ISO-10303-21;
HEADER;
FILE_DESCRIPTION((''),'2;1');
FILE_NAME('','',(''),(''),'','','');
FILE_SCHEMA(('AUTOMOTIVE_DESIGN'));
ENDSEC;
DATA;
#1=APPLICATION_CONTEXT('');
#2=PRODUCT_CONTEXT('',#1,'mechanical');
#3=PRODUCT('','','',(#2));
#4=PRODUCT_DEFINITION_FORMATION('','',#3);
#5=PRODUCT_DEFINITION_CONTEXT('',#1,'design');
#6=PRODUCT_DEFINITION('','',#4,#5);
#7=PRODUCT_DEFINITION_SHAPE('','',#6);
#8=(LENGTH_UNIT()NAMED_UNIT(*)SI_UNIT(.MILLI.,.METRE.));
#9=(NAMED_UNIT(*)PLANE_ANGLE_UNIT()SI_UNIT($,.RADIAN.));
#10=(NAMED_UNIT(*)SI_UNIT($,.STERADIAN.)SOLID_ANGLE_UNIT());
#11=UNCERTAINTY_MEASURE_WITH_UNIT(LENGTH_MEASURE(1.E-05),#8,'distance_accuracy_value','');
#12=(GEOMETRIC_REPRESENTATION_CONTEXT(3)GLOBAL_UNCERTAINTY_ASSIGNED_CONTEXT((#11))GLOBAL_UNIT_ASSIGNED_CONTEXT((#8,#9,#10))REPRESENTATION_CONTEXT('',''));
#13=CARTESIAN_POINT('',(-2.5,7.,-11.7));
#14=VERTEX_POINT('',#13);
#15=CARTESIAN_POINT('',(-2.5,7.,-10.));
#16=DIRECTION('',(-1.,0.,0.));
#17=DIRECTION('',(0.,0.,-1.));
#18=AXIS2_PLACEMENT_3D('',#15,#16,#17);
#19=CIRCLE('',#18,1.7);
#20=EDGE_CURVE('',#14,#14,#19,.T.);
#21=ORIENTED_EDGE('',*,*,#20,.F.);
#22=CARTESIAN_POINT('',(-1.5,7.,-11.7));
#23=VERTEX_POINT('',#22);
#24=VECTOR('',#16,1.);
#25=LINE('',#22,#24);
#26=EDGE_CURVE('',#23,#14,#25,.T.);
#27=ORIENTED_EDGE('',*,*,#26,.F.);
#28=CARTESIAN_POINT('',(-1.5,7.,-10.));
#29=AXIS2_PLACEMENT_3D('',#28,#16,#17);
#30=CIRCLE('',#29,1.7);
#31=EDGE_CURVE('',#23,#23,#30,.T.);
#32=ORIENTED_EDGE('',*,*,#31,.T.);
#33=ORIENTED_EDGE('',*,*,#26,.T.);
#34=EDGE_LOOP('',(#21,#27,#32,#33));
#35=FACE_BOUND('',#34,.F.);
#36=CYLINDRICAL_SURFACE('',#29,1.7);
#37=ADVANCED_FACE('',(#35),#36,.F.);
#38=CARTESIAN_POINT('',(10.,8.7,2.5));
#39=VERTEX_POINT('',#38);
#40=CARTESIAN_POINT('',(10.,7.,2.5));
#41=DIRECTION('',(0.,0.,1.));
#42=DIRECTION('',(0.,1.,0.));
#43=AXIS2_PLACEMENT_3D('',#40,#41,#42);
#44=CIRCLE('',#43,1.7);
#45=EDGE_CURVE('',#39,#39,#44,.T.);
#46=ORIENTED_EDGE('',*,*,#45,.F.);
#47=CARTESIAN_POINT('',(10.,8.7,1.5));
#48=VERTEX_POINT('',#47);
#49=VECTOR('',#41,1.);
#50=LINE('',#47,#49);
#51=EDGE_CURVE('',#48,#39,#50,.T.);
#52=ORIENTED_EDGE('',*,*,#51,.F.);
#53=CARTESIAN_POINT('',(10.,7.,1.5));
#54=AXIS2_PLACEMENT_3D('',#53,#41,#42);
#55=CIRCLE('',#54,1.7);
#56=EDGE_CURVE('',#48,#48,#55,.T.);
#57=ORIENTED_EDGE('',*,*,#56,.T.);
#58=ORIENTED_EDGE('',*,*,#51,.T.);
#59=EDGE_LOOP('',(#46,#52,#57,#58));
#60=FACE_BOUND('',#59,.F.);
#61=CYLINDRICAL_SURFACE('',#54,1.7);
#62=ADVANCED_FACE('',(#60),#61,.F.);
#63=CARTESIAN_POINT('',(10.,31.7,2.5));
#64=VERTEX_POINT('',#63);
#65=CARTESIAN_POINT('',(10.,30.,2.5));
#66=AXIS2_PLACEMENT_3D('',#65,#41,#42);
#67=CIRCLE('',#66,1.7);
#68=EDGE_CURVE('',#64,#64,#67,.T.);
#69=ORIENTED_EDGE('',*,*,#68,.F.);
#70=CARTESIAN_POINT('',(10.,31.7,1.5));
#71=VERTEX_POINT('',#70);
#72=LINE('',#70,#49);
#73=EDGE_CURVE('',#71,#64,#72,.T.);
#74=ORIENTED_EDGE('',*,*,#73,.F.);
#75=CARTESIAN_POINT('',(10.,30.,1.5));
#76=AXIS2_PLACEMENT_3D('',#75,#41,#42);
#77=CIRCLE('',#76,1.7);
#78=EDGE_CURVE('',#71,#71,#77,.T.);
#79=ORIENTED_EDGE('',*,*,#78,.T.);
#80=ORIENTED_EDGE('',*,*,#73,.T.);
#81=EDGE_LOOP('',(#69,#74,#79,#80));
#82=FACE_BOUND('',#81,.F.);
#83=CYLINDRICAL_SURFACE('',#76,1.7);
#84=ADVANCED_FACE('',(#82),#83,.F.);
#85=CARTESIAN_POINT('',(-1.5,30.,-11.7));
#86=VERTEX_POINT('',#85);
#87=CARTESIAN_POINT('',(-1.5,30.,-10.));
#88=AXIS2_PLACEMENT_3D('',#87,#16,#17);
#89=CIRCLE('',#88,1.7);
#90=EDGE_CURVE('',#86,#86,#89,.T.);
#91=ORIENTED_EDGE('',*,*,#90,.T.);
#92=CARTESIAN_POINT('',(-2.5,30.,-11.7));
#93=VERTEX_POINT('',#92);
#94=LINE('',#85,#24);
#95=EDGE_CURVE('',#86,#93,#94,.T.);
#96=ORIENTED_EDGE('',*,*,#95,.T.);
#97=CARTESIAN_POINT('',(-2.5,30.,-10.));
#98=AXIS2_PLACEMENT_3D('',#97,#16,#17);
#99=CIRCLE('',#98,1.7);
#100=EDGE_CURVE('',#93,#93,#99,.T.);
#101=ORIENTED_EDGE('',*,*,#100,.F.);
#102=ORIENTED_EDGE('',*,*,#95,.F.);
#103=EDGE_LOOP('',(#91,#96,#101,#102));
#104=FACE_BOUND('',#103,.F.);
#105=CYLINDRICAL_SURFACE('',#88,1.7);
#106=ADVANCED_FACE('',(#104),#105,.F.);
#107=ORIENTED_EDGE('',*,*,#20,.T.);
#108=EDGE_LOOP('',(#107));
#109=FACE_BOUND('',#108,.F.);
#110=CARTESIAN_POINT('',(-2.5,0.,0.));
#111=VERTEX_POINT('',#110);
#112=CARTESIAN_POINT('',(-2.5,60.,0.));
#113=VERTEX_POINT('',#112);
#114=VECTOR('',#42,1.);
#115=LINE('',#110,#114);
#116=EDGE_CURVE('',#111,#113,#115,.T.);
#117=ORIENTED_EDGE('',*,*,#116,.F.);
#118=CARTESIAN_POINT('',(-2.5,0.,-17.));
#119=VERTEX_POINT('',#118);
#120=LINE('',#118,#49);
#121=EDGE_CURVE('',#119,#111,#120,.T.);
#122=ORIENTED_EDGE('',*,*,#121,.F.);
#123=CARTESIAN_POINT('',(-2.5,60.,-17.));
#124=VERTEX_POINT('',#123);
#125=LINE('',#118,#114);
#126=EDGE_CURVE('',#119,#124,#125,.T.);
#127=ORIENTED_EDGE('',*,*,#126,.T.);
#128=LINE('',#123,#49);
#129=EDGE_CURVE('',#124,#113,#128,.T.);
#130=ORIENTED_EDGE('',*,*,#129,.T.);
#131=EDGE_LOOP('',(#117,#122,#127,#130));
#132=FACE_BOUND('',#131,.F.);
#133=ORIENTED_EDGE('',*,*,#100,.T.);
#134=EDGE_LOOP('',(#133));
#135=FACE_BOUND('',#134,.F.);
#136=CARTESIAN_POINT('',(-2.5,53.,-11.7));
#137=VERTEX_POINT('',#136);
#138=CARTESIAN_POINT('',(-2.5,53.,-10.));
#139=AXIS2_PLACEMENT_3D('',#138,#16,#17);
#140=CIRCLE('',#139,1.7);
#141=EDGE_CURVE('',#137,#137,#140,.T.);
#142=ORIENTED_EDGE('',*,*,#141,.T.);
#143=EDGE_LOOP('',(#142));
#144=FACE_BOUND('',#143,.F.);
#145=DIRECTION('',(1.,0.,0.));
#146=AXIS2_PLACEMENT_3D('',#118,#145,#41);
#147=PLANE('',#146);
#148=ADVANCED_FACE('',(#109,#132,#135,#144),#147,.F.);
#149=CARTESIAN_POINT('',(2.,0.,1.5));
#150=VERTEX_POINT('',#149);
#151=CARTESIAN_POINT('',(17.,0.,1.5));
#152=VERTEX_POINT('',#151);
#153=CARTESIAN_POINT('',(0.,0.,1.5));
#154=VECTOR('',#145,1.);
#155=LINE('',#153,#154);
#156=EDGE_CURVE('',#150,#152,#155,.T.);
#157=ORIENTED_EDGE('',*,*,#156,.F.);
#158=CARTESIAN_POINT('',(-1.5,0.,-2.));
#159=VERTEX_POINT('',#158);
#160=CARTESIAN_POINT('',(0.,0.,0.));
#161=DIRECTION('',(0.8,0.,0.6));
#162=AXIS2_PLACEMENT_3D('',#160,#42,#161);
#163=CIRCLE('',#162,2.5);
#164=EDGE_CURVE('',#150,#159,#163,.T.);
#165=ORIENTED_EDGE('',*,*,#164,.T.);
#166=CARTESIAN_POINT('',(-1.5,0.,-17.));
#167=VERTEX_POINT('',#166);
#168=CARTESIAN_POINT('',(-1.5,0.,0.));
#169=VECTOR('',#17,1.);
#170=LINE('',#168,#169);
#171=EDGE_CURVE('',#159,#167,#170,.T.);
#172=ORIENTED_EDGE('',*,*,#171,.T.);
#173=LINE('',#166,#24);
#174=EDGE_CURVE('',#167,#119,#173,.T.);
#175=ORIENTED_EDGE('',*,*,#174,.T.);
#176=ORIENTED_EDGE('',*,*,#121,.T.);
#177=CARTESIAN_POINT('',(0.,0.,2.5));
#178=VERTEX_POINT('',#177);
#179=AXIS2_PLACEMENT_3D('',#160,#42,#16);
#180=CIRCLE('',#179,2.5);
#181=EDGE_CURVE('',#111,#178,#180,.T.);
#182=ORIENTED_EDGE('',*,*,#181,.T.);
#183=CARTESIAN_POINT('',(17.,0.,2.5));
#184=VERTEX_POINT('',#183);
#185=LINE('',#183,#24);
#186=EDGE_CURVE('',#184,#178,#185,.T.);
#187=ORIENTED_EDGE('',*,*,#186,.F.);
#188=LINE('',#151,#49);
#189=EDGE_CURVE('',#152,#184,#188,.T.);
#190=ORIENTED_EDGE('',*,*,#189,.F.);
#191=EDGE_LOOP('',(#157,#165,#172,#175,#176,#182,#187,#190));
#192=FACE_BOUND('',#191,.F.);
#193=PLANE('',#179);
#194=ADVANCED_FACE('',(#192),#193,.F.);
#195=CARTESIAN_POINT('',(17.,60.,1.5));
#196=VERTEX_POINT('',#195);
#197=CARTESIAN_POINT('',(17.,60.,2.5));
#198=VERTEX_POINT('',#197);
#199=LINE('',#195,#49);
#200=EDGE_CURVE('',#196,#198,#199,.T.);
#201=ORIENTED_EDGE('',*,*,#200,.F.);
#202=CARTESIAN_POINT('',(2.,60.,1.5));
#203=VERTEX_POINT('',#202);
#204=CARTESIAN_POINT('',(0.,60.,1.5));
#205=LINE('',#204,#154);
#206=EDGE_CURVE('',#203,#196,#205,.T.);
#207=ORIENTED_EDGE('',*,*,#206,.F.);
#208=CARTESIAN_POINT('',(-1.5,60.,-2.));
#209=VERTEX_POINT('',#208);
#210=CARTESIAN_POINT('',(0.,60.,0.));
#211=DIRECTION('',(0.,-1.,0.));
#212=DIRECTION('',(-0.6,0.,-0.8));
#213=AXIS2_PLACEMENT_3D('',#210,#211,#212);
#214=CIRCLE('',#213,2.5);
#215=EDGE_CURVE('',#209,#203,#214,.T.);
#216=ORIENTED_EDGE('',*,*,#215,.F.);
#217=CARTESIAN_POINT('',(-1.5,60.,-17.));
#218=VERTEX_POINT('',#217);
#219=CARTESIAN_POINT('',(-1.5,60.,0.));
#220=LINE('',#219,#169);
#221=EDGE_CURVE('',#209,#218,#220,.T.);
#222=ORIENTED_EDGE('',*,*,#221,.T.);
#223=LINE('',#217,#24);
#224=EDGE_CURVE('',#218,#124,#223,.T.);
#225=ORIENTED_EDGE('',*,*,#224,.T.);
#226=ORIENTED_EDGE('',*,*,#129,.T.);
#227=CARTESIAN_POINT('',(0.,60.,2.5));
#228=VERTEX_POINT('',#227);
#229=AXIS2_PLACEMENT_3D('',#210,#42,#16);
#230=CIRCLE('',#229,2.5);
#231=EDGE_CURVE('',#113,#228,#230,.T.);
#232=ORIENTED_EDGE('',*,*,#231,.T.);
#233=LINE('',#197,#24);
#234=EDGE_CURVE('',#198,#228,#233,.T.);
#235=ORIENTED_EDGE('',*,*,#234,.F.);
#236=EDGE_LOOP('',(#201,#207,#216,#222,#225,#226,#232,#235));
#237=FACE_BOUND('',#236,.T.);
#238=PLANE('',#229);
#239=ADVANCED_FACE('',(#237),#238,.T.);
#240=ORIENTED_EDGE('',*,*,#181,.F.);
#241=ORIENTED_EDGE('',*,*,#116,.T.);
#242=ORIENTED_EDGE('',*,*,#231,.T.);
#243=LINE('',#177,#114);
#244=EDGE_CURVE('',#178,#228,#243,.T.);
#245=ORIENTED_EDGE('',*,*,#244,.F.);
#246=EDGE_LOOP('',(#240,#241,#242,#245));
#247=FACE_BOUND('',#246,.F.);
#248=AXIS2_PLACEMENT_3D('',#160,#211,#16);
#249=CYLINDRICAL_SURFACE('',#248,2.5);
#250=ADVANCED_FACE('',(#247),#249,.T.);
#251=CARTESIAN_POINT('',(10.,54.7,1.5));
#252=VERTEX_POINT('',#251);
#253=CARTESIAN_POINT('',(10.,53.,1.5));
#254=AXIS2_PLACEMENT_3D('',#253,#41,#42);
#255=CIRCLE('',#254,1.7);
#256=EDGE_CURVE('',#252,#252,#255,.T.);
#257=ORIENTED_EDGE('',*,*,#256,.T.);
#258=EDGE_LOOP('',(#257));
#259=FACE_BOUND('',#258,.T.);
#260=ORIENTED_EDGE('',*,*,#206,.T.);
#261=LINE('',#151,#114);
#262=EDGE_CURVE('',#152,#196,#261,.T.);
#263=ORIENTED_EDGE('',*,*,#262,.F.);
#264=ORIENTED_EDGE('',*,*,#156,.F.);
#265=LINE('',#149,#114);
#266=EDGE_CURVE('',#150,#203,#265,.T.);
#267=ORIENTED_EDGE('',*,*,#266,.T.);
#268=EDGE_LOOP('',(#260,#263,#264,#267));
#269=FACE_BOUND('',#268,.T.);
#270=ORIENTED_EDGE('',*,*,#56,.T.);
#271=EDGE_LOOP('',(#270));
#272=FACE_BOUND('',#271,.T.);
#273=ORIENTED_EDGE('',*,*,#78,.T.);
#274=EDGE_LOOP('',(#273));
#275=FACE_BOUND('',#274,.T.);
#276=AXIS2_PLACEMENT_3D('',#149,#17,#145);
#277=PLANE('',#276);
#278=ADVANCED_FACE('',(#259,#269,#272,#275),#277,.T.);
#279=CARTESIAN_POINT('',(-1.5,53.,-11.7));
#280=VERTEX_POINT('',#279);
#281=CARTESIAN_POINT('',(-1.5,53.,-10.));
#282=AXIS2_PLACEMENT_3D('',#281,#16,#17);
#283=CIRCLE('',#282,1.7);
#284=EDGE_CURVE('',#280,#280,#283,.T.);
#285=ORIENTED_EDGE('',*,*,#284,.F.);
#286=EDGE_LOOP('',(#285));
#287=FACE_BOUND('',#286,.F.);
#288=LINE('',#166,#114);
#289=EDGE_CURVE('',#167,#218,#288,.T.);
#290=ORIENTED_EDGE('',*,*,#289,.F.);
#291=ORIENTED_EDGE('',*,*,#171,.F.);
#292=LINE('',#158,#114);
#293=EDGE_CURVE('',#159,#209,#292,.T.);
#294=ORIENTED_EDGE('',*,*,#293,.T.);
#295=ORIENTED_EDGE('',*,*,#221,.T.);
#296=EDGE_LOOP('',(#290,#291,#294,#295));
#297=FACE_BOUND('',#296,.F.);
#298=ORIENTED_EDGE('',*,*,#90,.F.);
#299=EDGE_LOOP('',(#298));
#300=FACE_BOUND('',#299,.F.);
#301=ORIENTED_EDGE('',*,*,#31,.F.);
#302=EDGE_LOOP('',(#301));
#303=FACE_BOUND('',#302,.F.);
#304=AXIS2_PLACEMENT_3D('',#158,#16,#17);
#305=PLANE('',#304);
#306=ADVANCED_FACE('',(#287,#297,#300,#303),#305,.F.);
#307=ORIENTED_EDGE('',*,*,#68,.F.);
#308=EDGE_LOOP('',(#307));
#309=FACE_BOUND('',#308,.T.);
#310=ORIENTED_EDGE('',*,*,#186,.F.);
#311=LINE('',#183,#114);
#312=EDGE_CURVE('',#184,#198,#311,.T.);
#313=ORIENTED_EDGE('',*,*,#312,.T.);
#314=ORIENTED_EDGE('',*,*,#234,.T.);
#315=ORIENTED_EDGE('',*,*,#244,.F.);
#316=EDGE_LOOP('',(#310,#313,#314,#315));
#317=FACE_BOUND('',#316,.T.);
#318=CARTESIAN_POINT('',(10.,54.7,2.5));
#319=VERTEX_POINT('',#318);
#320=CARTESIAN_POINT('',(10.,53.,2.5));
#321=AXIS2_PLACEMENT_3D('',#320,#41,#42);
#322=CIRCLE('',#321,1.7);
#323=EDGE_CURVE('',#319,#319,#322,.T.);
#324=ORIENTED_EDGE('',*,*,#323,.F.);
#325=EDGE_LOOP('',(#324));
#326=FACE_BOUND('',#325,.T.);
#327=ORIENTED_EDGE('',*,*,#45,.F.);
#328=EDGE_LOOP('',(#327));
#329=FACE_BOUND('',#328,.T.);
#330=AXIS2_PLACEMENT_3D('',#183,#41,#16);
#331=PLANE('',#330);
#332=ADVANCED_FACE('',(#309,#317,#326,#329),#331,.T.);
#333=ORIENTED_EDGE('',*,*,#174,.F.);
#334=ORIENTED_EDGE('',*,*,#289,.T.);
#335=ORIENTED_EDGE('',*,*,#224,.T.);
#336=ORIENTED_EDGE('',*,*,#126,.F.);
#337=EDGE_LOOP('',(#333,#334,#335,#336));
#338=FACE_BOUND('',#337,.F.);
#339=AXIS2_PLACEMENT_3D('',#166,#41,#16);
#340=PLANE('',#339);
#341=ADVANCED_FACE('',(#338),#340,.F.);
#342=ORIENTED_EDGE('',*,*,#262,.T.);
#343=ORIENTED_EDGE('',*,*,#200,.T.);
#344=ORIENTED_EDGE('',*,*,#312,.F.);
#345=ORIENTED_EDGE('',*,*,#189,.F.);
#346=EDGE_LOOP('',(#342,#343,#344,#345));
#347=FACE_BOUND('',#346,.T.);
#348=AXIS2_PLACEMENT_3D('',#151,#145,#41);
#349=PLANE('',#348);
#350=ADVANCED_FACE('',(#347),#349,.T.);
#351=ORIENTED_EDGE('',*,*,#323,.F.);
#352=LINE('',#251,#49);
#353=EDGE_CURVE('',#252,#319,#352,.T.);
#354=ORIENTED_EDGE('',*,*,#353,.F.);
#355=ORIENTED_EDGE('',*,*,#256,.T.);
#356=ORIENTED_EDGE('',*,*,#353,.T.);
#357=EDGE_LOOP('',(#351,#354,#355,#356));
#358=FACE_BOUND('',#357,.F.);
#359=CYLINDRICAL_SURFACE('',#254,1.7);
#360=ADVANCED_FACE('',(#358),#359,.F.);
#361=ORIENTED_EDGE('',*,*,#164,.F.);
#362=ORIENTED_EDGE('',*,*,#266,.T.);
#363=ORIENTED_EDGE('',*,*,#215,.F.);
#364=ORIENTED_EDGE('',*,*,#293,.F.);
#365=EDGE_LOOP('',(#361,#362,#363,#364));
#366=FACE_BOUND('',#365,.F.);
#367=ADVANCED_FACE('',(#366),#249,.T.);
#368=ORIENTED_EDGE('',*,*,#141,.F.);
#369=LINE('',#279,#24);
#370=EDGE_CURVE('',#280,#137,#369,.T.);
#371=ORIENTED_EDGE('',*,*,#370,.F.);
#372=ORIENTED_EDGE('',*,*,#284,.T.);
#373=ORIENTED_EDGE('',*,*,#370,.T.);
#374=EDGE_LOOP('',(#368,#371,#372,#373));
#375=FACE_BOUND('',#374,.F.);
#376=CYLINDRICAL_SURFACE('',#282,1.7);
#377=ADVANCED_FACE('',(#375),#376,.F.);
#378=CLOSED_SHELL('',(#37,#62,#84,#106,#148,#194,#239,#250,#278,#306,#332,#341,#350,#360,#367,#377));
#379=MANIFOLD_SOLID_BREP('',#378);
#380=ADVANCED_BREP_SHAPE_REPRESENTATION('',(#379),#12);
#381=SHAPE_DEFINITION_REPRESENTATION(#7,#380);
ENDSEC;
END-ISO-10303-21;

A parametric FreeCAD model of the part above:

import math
import FreeCAD as App
import Part
import Sketcher

V = App.Vector

doc = App.newDocument("Part")
body = doc.addObject("PartDesign::Body", "Body")

# Sketch on XZ plane
sketch1 = body.newObject("Sketcher::SketchObject", "Sketch")
sketch1.AttachmentSupport = (doc.getObject("XZ_Plane"), [""])
sketch1.MapMode = "FlatFace"
sketch1.addGeometry([
    Part.ArcOfCircle(Part.Circle(V(0, 0, 0), V(0, 0, 1), 2.5), math.radians(-126.869898), math.radians(36.869898)),  # 0
    Part.LineSegment(V(-1.5, -2, 0), V(-1.5, -17, 0)),  # 1
    Part.LineSegment(V(-1.5, -17, 0), V(-2.5, -17, 0)),  # 2
    Part.LineSegment(V(-2.5, -17, 0), V(-2.5, 0, 0)),  # 3
    Part.ArcOfCircle(Part.Circle(V(0, 0, 0), V(0, 0, 1), 2.5), math.radians(90), math.radians(180)),  # 4
    Part.LineSegment(V(0, 2.5, 0), V(17, 2.5, 0)),  # 5
    Part.LineSegment(V(17, 2.5, 0), V(17, 1.5, 0)),  # 6
    Part.LineSegment(V(17, 1.5, 0), V(2, 1.5, 0)),  # 7
], False)
sketch1.addConstraint([
    Sketcher.Constraint("Coincident", 0, 1, 1, 1),
    Sketcher.Constraint("Coincident", 1, 2, 2, 1),
    Sketcher.Constraint("Coincident", 2, 2, 3, 1),
    Sketcher.Constraint("Tangent", 3, 2, 4, 2),
    Sketcher.Constraint("Tangent", 4, 1, 5, 1),
    Sketcher.Constraint("Coincident", 5, 2, 6, 1),
    Sketcher.Constraint("Coincident", 6, 2, 7, 1),
    Sketcher.Constraint("Coincident", 7, 2, 0, 2),
    Sketcher.Constraint("Vertical", 1),
    Sketcher.Constraint("Horizontal", 2),
    Sketcher.Constraint("Vertical", 3),
    Sketcher.Constraint("Horizontal", 5),
    Sketcher.Constraint("Vertical", 6),
    Sketcher.Constraint("Horizontal", 7),
    Sketcher.Constraint("Coincident", 0, 3, -1, 1),
    Sketcher.Constraint("Coincident", 4, 3, -1, 1),
    Sketcher.Constraint("Equal", 0, 4),
    Sketcher.Constraint("Equal", 7, 1),
    Sketcher.Constraint("Equal", 5, 3),
    Sketcher.Constraint("Radius", 0, 2.5),
    Sketcher.Constraint("DistanceX", 2, 2, 2, 1, 1.0),
    Sketcher.Constraint("DistanceX", 5, 1, 5, 2, 17.0),
])
pad1 = body.newObject("PartDesign::Pad", "Pad")
pad1.Profile = sketch1
pad1.Length = 60
pad1.Reversed = True

# Sketch on XY plane
sketch2 = body.newObject("Sketcher::SketchObject", "Sketch001")
sketch2.AttachmentSupport = (doc.getObject("XY_Plane"), [""])
sketch2.MapMode = "FlatFace"
sketch2.AttachmentOffset = App.Placement(V(0, 0, 1.5), App.Rotation())
sketch2.addGeometry([
    Part.Circle(V(10, 30, 0), V(0, 0, 1), 1.7),
    Part.Circle(V(10, 53, 0), V(0, 0, 1), 1.7),
    Part.Circle(V(10, 7, 0), V(0, 0, 1), 1.7),
], False)
sketch2.addConstraint([
    Sketcher.Constraint("Equal", 0, 1),
    Sketcher.Constraint("Equal", 1, 2),
    Sketcher.Constraint("Vertical", 0, 3, 1, 3),
    Sketcher.Constraint("Vertical", 1, 3, 2, 3),
    Sketcher.Constraint("Diameter", 0, 3.4),
    Sketcher.Constraint("DistanceX", -1, 1, 0, 3, 10.0),
    Sketcher.Constraint("DistanceY", -1, 1, 0, 3, 30.0),
    Sketcher.Constraint("DistanceY", -1, 1, 1, 3, 53.0),
    Sketcher.Constraint("DistanceY", -1, 1, 2, 3, 7.0),
])
doc.recompute()
hole = body.newObject("PartDesign::Hole", "Hole")
hole.Profile = sketch2
hole.ThreadType = "None"
hole.Diameter = 3.4
hole.DepthType = "ThroughAll"
hole.Reversed = True

# Sketch on YZ plane
sketch3 = body.newObject("Sketcher::SketchObject", "Sketch002")
sketch3.AttachmentSupport = (doc.getObject("YZ_Plane"), [""])
sketch3.MapMode = "FlatFace"
sketch3.AttachmentOffset = App.Placement(V(0, 0, -1.5), App.Rotation())
sketch3.addGeometry([
    Part.Circle(V(30, -10, 0), V(0, 0, 1), 1.7),
    Part.Circle(V(7, -10, 0), V(0, 0, 1), 1.7),
    Part.Circle(V(53, -10, 0), V(0, 0, 1), 1.7),
], False)
sketch3.addConstraint([
    Sketcher.Constraint("Equal", 0, 1),
    Sketcher.Constraint("Equal", 1, 2),
    Sketcher.Constraint("Horizontal", 0, 3, 1, 3),
    Sketcher.Constraint("Horizontal", 1, 3, 2, 3),
    Sketcher.Constraint("Diameter", 0, 3.4),
    Sketcher.Constraint("DistanceX", -1, 1, 0, 3, 30.0),
    Sketcher.Constraint("DistanceY", 0, 3, -1, 1, 10.0),
    Sketcher.Constraint("DistanceX", -1, 1, 1, 3, 7.0),
    Sketcher.Constraint("DistanceX", -1, 1, 2, 3, 53.0),
])
doc.recompute()
hole2 = body.newObject("PartDesign::Hole", "Hole001")
hole2.Profile = sketch3
hole2.ThreadType = "None"
hole2.Diameter = 3.4
hole2.DepthType = "ThroughAll"

doc.recompute()
